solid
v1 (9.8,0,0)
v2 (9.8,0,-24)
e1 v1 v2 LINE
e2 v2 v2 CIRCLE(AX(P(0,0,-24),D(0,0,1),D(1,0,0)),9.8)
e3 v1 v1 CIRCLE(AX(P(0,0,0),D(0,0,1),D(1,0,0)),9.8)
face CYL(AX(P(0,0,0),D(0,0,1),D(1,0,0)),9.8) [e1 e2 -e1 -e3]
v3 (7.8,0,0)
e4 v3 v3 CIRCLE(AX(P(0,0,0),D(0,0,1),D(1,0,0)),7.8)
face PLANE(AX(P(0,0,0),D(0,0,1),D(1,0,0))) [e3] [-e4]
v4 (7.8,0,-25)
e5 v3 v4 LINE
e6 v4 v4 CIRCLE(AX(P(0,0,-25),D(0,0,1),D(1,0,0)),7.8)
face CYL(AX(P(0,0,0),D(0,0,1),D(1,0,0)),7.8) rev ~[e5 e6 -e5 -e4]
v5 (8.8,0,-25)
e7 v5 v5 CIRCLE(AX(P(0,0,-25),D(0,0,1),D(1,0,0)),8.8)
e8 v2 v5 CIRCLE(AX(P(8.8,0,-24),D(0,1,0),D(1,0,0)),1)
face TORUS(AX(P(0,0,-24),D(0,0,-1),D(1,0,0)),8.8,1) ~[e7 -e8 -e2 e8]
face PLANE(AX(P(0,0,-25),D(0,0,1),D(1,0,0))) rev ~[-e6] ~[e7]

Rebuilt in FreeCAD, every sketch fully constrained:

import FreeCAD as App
import Part
import Sketcher

V = App.Vector
Q = App.Units.Quantity


def edges_at(feature, points):
    """Names of the edges that pass closest to the given points."""
    edges = feature.Shape.Edges
    near = lambda p: min(range(len(edges)), key=lambda i: edges[i].distToShape(Part.Vertex(*p))[0])
    return sorted({f"Edge{near(p) + 1}" for p in points})

doc = App.newDocument("Part")
body = doc.addObject("PartDesign::Body", "Body")

sketch1 = body.newObject("Sketcher::SketchObject", "Sketch")
sketch1.AttachmentSupport = (doc.getObject("XY_Plane"), [""])
sketch1.MapMode = "FlatFace"
sketch1.addGeometry(Part.Circle(V(0, 0, 0), V(0, 0, 1), 10), False)
sketch1.addGeometry(Part.Circle(V(0, 0, 0), V(0, 0, 1), 8), False)
sketch1.addConstraint(Sketcher.Constraint("Coincident", 0, 3, -1, 1))
sketch1.addConstraint(Sketcher.Constraint("Coincident", 1, 3, -1, 1))
sketch1.addConstraint(Sketcher.Constraint("Diameter", 0, Q("19.6 mm")))
sketch1.addConstraint(Sketcher.Constraint("Diameter", 1, Q("15.6 mm")))
pad1 = body.newObject("PartDesign::Pad", "Pad")
pad1.Profile = sketch1
pad1.Length = 25
pad1.Reversed = True
doc.recompute()

fillet = body.newObject("PartDesign::Fillet", "Fillet")
fillet.Base = (pad1, edges_at(pad1, [(-9.8, 0, -25)]))
fillet.Radius = 1

doc.recompute()
